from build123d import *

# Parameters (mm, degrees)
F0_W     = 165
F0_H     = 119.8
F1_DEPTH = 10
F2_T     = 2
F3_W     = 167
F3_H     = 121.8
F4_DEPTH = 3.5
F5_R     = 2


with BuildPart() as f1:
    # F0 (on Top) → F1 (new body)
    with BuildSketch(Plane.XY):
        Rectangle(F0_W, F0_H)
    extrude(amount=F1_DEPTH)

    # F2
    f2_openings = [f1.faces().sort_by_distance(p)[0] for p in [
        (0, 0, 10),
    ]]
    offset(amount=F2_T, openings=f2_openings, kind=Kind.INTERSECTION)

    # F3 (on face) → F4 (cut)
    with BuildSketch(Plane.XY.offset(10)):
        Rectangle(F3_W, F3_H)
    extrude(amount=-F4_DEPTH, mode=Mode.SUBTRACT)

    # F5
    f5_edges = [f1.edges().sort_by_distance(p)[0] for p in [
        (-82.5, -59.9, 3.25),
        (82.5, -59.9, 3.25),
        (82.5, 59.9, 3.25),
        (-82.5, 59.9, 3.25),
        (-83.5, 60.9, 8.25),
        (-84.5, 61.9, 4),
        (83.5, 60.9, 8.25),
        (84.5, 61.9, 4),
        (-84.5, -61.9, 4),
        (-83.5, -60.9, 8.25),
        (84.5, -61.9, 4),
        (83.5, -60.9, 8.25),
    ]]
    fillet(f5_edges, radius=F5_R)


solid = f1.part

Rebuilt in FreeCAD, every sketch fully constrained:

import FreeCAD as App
import Part
import Sketcher
from FreeCAD import Vector
Q = App.Units.Quantity


def edges_at(feature, points):
    """Names of the edges that pass closest to the given points."""
    edges = feature.Shape.Edges
    near = lambda p: min(range(len(edges)), key=lambda i: edges[i].distToShape(Part.Vertex(*p))[0])
    return sorted({f"Edge{near(p) + 1}" for p in points})


def faces_at(feature, points):
    """Names of the faces that lie closest to the given points."""
    faces = feature.Shape.Faces
    near = lambda p: min(range(len(faces)), key=lambda i: faces[i].distToShape(Part.Vertex(*p))[0])
    return sorted({f"Face{near(p) + 1}" for p in points})


def add_polygon(sketch, points):
    """Adds a closed chain of lines whose ends are joined by coincident constraints."""
    first, n = sketch.GeometryCount, len(points)
    for a, b in zip(points, points[1:] + points[:1]):
        sketch.addGeometry(Part.LineSegment(App.Vector(*a, 0), App.Vector(*b, 0)), False)
    for i in range(n):
        sketch.addConstraint(Sketcher.Constraint("Coincident", first + i, 2, first + (i + 1) % n, 1))

doc = App.newDocument("Part")
body = doc.addObject("PartDesign::Body", "Body")

sketch1 = doc.addObject("Sketcher::SketchObject", "Sketch")
body.addObject(sketch1)
sketch1.AttachmentSupport = (doc.XY_Plane, [""])
sketch1.MapMode = "FlatFace"
add_polygon(sketch1, [(-82, 60), (-82, -60), (82, -60), (82, 60)])
sketch1.addConstraint([
    Sketcher.Constraint("Vertical", 0),
    Sketcher.Constraint("Horizontal", 1),
    Sketcher.Constraint("Vertical", 2),
    Sketcher.Constraint("Horizontal", 3),
    Sketcher.Constraint("Symmetric", 0, 2, 2, 2, -1, 1),
    Sketcher.Constraint("DistanceX", 1, 1, 1, 2, Q("165 mm")),
    Sketcher.Constraint("DistanceY", 0, 2, 0, 1, Q("119.8 mm")),
])
pad1 = doc.addObject("PartDesign::Pad", "Pad")
body.addObject(pad1)
pad1.Profile = sketch1
pad1.Length = 10
doc.recompute()

thickness = doc.addObject("PartDesign::Thickness", "Thickness")
body.addObject(thickness)
thickness.Base = (pad1, faces_at(pad1, [(0, 0, 10)]))
thickness.Value = 2
thickness.Reversed = False
thickness.Join = "Intersection"

sketch2 = doc.addObject("Sketcher::SketchObject", "Sketch001")
body.addObject(sketch2)
sketch2.AttachmentSupport = (doc.XY_Plane, [""])
sketch2.MapMode = "FlatFace"
sketch2.AttachmentOffset = App.Placement(Vector(0, 0, 10), App.Rotation())
add_polygon(sketch2, [(-84, 61), (-84, -61), (84, -61), (84, 61)])
sketch2.addConstraint([
    Sketcher.Constraint("Vertical", 0),
    Sketcher.Constraint("Horizontal", 1),
    Sketcher.Constraint("Vertical", 2),
    Sketcher.Constraint("Horizontal", 3),
    Sketcher.Constraint("Symmetric", 0, 2, 2, 2, -1, 1),
    Sketcher.Constraint("DistanceX", 1, 1, 1, 2, Q("167 mm")),
    Sketcher.Constraint("DistanceY", 0, 2, 0, 1, Q("121.8 mm")),
])
pocket1 = doc.addObject("PartDesign::Pocket", "Pocket")
body.addObject(pocket1)
pocket1.Profile = sketch2
pocket1.Length = 3.5
doc.recompute()

fillet = doc.addObject("PartDesign::Fillet", "Fillet")
body.addObject(fillet)
fillet.Base = (pocket1, edges_at(pocket1, [
    (-82.5, -59.9, 3.25),
    (82.5, -59.9, 3.25),
    (82.5, 59.9, 3.25),
    (-82.5, 59.9, 3.25),
    (-83.5, 60.9, 8.25),
    (-84.5, 61.9, 4),
    (83.5, 60.9, 8.25),
    (84.5, 61.9, 4),
    (-84.5, -61.9, 4),
    (-83.5, -60.9, 8.25),
    (84.5, -61.9, 4),
    (83.5, -60.9, 8.25),
]))
fillet.Radius = 2

doc.recompute()
